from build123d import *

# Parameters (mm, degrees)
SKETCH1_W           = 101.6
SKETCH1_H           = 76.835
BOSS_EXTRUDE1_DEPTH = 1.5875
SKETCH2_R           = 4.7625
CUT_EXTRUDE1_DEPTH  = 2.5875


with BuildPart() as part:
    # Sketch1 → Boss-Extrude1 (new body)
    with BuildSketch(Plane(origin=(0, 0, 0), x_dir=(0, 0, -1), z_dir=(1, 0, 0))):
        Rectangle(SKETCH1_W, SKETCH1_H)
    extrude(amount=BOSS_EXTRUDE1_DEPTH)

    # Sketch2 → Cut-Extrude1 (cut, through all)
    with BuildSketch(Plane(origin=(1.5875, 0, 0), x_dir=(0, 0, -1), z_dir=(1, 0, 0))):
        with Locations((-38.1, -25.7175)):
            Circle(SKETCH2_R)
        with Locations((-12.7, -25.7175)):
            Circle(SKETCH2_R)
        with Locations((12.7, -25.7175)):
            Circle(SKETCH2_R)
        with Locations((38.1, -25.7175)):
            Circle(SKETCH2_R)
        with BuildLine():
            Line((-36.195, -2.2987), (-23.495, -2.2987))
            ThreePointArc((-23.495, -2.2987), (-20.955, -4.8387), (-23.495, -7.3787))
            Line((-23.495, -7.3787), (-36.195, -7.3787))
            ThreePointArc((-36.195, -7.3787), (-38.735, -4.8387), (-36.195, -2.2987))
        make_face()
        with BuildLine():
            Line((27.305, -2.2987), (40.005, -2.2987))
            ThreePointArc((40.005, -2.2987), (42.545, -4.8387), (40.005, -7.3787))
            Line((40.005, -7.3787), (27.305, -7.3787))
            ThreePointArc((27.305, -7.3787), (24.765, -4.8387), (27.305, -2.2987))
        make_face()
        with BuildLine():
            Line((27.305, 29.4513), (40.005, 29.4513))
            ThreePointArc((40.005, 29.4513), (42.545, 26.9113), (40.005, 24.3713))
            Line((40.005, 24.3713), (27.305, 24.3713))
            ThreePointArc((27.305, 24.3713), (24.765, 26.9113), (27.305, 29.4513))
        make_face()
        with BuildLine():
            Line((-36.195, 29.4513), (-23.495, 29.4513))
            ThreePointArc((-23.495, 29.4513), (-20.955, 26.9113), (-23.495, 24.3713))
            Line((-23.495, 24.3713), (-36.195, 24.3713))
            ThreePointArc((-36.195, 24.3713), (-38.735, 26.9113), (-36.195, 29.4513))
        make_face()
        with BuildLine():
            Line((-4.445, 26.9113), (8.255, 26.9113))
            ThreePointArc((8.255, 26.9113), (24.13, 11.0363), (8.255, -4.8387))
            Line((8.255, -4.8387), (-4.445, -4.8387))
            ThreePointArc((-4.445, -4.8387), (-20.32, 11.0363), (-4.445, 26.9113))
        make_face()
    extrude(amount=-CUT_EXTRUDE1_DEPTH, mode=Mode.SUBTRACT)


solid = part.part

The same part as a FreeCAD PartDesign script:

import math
import FreeCAD as App
import Part
import Sketcher

V = App.Vector
Q = App.Units.Quantity


def add_polygon(sketch, points):
    """Adds a closed chain of lines whose ends are joined by coincident constraints."""
    first, n = sketch.GeometryCount, len(points)
    for a, b in zip(points, points[1:] + points[:1]):
        sketch.addGeometry(Part.LineSegment(App.Vector(*a, 0), App.Vector(*b, 0)), False)
    for i in range(n):
        sketch.addConstraint(Sketcher.Constraint("Coincident", first + i, 2, first + (i + 1) % n, 1))

doc = App.newDocument("Part")
body = doc.addObject("PartDesign::Body", "Body")

sketch1 = doc.addObject("Sketcher::SketchObject", "Sketch")
body.addObject(sketch1)
sketch1.AttachmentSupport = (doc.YZ_Plane, [""])
sketch1.MapMode = "FlatFace"
add_polygon(sketch1, [(38.4175, 50.8), (-38.4175, 50.8), (-38.4175, -50.8), (38.4175, -50.8)])
sketch1.addConstraint([
    Sketcher.Constraint("Horizontal", 0),
    Sketcher.Constraint("Vertical", 1),
    Sketcher.Constraint("Horizontal", 2),
    Sketcher.Constraint("Vertical", 3),
    Sketcher.Constraint("Symmetric", 0, 2, 2, 2, -1, 1),
    Sketcher.Constraint("DistanceY", 1, 2, 1, 1, Q("4 in")),
    Sketcher.Constraint("DistanceX", 0, 2, 0, 1, Q("3.025 in")),
])
pad1 = doc.addObject("PartDesign::Pad", "Pad")
body.addObject(pad1)
pad1.Profile = sketch1
pad1.Length = Q("0.0625 in")

sketch2 = doc.addObject("Sketcher::SketchObject", "Sketch001")
body.addObject(sketch2)
sketch2.AttachmentSupport = (doc.YZ_Plane, [""])
sketch2.MapMode = "FlatFace"
sketch2.AttachmentOffset = App.Placement(V(0, 0, 0.0625 * 25.4), App.Rotation())
sketch2.addGeometry([
    Part.Circle(V(-25.7175, 38.1, 0), V(0, 0, 1), 4.7625),
    Part.Circle(V(-25.7175, 12.7, 0), V(0, 0, 1), 4.7625),
    Part.Circle(V(-25.7175, -12.7, 0), V(0, 0, 1), 4.7625),
    Part.Circle(V(-25.7175, -38.1, 0), V(0, 0, 1), 4.7625),
    Part.LineSegment(V(-2.2987, 23.495, 0), V(-2.2987, 36.195, 0)),
    Part.ArcOfCircle(Part.Circle(V(-4.8387, 36.195, 0), V(0, 0, 1), 2.54), math.radians(0), math.radians(180)),
    Part.LineSegment(V(-7.3787, 36.195, 0), V(-7.3787, 23.495, 0)),
    Part.ArcOfCircle(Part.Circle(V(-4.8387, 23.495, 0), V(0, 0, 1), 2.54), math.radians(180), math.radians(360)),
    Part.LineSegment(V(-2.2987, -40.005, 0), V(-2.2987, -27.305, 0)),
    Part.ArcOfCircle(Part.Circle(V(-4.8387, -27.305, 0), V(0, 0, 1), 2.54), math.radians(0), math.radians(180)),
    Part.LineSegment(V(-7.3787, -27.305, 0), V(-7.3787, -40.005, 0)),
    Part.ArcOfCircle(Part.Circle(V(-4.8387, -40.005, 0), V(0, 0, 1), 2.54), math.radians(180), math.radians(360)),
    Part.LineSegment(V(29.4513, -40.005, 0), V(29.4513, -27.305, 0)),
    Part.ArcOfCircle(Part.Circle(V(26.9113, -27.305, 0), V(0, 0, 1), 2.54), math.radians(0), math.radians(180)),
    Part.LineSegment(V(24.3713, -27.305, 0), V(24.3713, -40.005, 0)),
    Part.ArcOfCircle(Part.Circle(V(26.9113, -40.005, 0), V(0, 0, 1), 2.54), math.radians(180), math.radians(360)),
    Part.LineSegment(V(29.4513, 23.495, 0), V(29.4513, 36.195, 0)),
    Part.ArcOfCircle(Part.Circle(V(26.9113, 36.195, 0), V(0, 0, 1), 2.54), math.radians(0), math.radians(180)),
    Part.LineSegment(V(24.3713, 36.195, 0), V(24.3713, 23.495, 0)),
    Part.ArcOfCircle(Part.Circle(V(26.9113, 23.495, 0), V(0, 0, 1), 2.54), math.radians(180), math.radians(360)),
    Part.LineSegment(V(26.9113, -8.255, 0), V(26.9113, 4.445, 0)),
    Part.ArcOfCircle(Part.Circle(V(11.0363, 4.445, 0), V(0, 0, 1), 15.875), math.radians(0), math.radians(180)),
    Part.LineSegment(V(-4.8387, 4.445, 0), V(-4.8387, -8.255, 0)),
    Part.ArcOfCircle(Part.Circle(V(11.0363, -8.255, 0), V(0, 0, 1), 15.875), math.radians(180), math.radians(360)),
], False)
sketch2.addConstraint([
    Sketcher.Constraint("Tangent", 4, 2, 5, 1),
    Sketcher.Constraint("Tangent", 5, 2, 6, 1),
    Sketcher.Constraint("Tangent", 6, 2, 7, 1),
    Sketcher.Constraint("Tangent", 7, 2, 4, 1),
    Sketcher.Constraint("Tangent", 8, 2, 9, 1),
    Sketcher.Constraint("Tangent", 9, 2, 10, 1),
    Sketcher.Constraint("Tangent", 10, 2, 11, 1),
    Sketcher.Constraint("Tangent", 11, 2, 8, 1),
    Sketcher.Constraint("Tangent", 12, 2, 13, 1),
    Sketcher.Constraint("Tangent", 13, 2, 14, 1),
    Sketcher.Constraint("Tangent", 14, 2, 15, 1),
    Sketcher.Constraint("Tangent", 15, 2, 12, 1),
    Sketcher.Constraint("Tangent", 16, 2, 17, 1),
    Sketcher.Constraint("Tangent", 17, 2, 18, 1),
    Sketcher.Constraint("Tangent", 18, 2, 19, 1),
    Sketcher.Constraint("Tangent", 19, 2, 16, 1),
    Sketcher.Constraint("Tangent", 20, 2, 21, 1),
    Sketcher.Constraint("Tangent", 21, 2, 22, 1),
    Sketcher.Constraint("Tangent", 22, 2, 23, 1),
    Sketcher.Constraint("Tangent", 23, 2, 20, 1),
    Sketcher.Constraint("Vertical", 4),
    Sketcher.Constraint("Vertical", 6),
    Sketcher.Constraint("Vertical", 8),
    Sketcher.Constraint("Vertical", 10),
    Sketcher.Constraint("Vertical", 12),
    Sketcher.Constraint("Vertical", 14),
    Sketcher.Constraint("Vertical", 16),
    Sketcher.Constraint("Vertical", 18),
    Sketcher.Constraint("Vertical", 20),
    Sketcher.Constraint("Vertical", 22),
    Sketcher.Constraint("Equal", 0, 1),
    Sketcher.Constraint("Equal", 1, 2),
    Sketcher.Constraint("Equal", 2, 3),
    Sketcher.Constraint("Equal", 7, 9),
    Sketcher.Constraint("Equal", 11, 13),
    Sketcher.Constraint("Equal", 15, 17),
    Sketcher.Constraint("Symmetric", 1, 3, 2, 3, -1),
    Sketcher.Constraint("Symmetric", 0, 3, 3, 3, -1),
    Sketcher.Constraint("Horizontal", 9, 3, 13, 3),
    Sketcher.Constraint("Horizontal", 11, 3, 15, 3),
    Sketcher.Constraint("Horizontal", 5, 3, 17, 3),
    Sketcher.Constraint("Horizontal", 7, 3, 19, 3),
    Sketcher.Constraint("Vertical", 0, 3, 1, 3),
    Sketcher.Constraint("Vertical", 7, 3, 9, 3),
    Sketcher.Constraint("Vertical", 15, 3, 17, 3),
    Sketcher.Constraint("Vertical", 19, 3, 20, 2),
    Sketcher.Constraint("Vertical", 11, 3, 21, 2),
    Sketcher.Constraint("Equal", 6, 8),
    Sketcher.Constraint("Equal", 18, 20),
    Sketcher.Constraint("Radius", 5, Q("0.1 in")),
    Sketcher.Constraint("Diameter", 0, Q("0.375 in")),
    Sketcher.Constraint("DistanceY", 4, 1, 4, 2, Q("0.5 in")),
    Sketcher.Constraint("Radius", 21, Q("0.625 in")),
    Sketcher.Constraint("DistanceY", 1, 3, 0, 3, Q("1 in")),
    Sketcher.Constraint("DistanceY", 2, 3, 1, 3, Q("1 in")),
    Sketcher.Constraint("DistanceY", 9, 3, 7, 3, Q("2 in")),
    Sketcher.Constraint("DistanceY", 21, 3, 7, 3, Q("0.75 in")),
    Sketcher.Constraint("DistanceY", -1, 1, 5, 3, Q("1.425 in")),
    Sketcher.Constraint("DistanceX", 0, 3, 5, 3, Q("0.822 in")),
    Sketcher.Constraint("DistanceX", 0, 3, -1, 1, Q("1.0125 in")),
])
pocket1 = doc.addObject("PartDesign::Pocket", "Pocket")
body.addObject(pocket1)
pocket1.Profile = sketch2
pocket1.Type = "ThroughAll"

doc.recompute()
